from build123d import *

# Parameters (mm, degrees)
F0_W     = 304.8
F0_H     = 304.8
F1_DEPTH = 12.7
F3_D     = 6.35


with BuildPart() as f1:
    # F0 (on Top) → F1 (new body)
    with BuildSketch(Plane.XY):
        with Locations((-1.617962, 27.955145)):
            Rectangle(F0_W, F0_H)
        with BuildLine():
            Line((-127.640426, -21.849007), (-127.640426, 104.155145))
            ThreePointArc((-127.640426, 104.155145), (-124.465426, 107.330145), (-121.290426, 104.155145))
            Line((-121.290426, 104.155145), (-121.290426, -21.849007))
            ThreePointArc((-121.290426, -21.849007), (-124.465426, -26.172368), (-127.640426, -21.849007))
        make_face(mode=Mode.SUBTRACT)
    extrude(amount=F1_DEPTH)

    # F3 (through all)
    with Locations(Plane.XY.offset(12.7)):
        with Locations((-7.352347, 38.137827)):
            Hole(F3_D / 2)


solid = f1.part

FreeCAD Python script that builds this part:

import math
import FreeCAD as App
import Part
import Sketcher
Q = App.Units.Quantity

doc = App.newDocument("Part")
params = doc.addObject("Spreadsheet::Sheet", "Params")
for row, (alias, value) in enumerate([
    ("sketch1_width", "12 in"),
    ("sketch1_radius", "0.125 in"),
    ("pad1_length", "0.5 in"),
    ("sketch2_diameter", "0.25 in"),
    ("hole_diameter", "0.25 in"),
], start=1):
    params.set(f"A{row}", alias)
    params.set(f"B{row}", "=" + value)
    params.setAlias(f"B{row}", alias)

body = doc.addObject("PartDesign::Body", "Body")

sketch1 = body.newObject("Sketcher::SketchObject", "Sketch")
sketch1.AttachmentSupport = (doc.getObject("XY_Plane"), [""])
sketch1.MapMode = "FlatFace"
sketch1.addGeometry([
    Part.LineSegment(App.Vector(-154, 180.4, 0), App.Vector(-154, -124.4, 0)),
    Part.LineSegment(App.Vector(-154, -124.4, 0), App.Vector(150.8, -124.4, 0)),
    Part.LineSegment(App.Vector(150.8, -124.4, 0), App.Vector(150.8, 180.4, 0)),
    Part.LineSegment(App.Vector(150.8, 180.4, 0), App.Vector(-154, 180.4, 0)),
    Part.ArcOfCircle(Part.Circle(App.Vector(-124.5, -22.8, 0), App.Vector(0, 0, 1), 3.3), math.radians(163), math.radians(377)),
    Part.LineSegment(App.Vector(-127.6, -21.8, 0), App.Vector(-127.6, 104.2, 0)),
    Part.ArcOfCircle(Part.Circle(App.Vector(-124.5, 104.2, 0), App.Vector(0, 0, 1), 3.2), math.radians(0), math.radians(180)),
    Part.LineSegment(App.Vector(-121.3, 104.2, 0), App.Vector(-121.3, -21.8, 0)),
], False)
sketch1.addConstraint([
    Sketcher.Constraint("Coincident", 0, 2, 1, 1),
    Sketcher.Constraint("Coincident", 1, 2, 2, 1),
    Sketcher.Constraint("Coincident", 2, 2, 3, 1),
    Sketcher.Constraint("Coincident", 3, 2, 0, 1),
    Sketcher.Constraint("Coincident", 4, 1, 5, 1),
    Sketcher.Constraint("Tangent", 5, 2, 6, 2),
    Sketcher.Constraint("Tangent", 6, 1, 7, 1),
    Sketcher.Constraint("Coincident", 7, 2, 4, 2),
    Sketcher.Constraint("Vertical", 0),
    Sketcher.Constraint("Horizontal", 1),
    Sketcher.Constraint("Vertical", 2),
    Sketcher.Constraint("Horizontal", 3),
    Sketcher.Constraint("Vertical", 5),
    Sketcher.Constraint("Vertical", 7),
    Sketcher.Constraint("Horizontal", 4, 1, 7, 2),
    Sketcher.Constraint("Equal", 3, 0),
    Sketcher.Constraint("DistanceX", 1, 1, 1, 2, Q("12 in")),
    Sketcher.Constraint("Radius", 6, Q("0.125 in")),
    Sketcher.Constraint("DistanceY", 4, 3, 6, 3, Q("5 in")),
    Sketcher.Constraint("DistanceY", 0, 2, 4, 3, Q("4 in")),
    Sketcher.Constraint("Radius", 4, 3.327512),
    Sketcher.Constraint("DistanceX", -1, 1, 1, 2, 150.782038),
    Sketcher.Constraint("DistanceX", 4, 3, -1, 1, 124.465426),
    Sketcher.Constraint("DistanceY", 4, 3, -1, 1, 22.844856),
])
sketch1.setExpression("Constraints[16]", "Params.sketch1_width")
sketch1.setExpression("Constraints[17]", "Params.sketch1_radius")
pad1 = body.newObject("PartDesign::Pad", "Pad")
pad1.Profile = sketch1
pad1.setExpression("Length", "Params.pad1_length")

sketch2 = body.newObject("Sketcher::SketchObject", "Sketch001")
sketch2.AttachmentSupport = (doc.getObject("XY_Plane"), [""])
sketch2.MapMode = "FlatFace"
sketch2.AttachmentOffset = App.Placement(App.Vector(0, 0, 0.5 * 25.4), App.Rotation())
sketch2.addGeometry(Part.Circle(App.Vector(-7.4, 38.1, 0), App.Vector(0, 0, 1), 3.2), False)
sketch2.addConstraint([
    Sketcher.Constraint("Diameter", 0, Q("0.25 in")),
    Sketcher.Constraint("DistanceX", 0, 3, -1, 1, 7.352347),
    Sketcher.Constraint("DistanceY", -1, 1, 0, 3, 38.137827),
])
sketch2.setExpression("Constraints[0]", "Params.sketch2_diameter")
doc.recompute()
hole = body.newObject("PartDesign::Hole", "Hole")
hole.Profile = sketch2
hole.ThreadType = "None"
hole.setExpression("Diameter", "Params.hole_diameter")
hole.DepthType = "ThroughAll"

doc.recompute()
